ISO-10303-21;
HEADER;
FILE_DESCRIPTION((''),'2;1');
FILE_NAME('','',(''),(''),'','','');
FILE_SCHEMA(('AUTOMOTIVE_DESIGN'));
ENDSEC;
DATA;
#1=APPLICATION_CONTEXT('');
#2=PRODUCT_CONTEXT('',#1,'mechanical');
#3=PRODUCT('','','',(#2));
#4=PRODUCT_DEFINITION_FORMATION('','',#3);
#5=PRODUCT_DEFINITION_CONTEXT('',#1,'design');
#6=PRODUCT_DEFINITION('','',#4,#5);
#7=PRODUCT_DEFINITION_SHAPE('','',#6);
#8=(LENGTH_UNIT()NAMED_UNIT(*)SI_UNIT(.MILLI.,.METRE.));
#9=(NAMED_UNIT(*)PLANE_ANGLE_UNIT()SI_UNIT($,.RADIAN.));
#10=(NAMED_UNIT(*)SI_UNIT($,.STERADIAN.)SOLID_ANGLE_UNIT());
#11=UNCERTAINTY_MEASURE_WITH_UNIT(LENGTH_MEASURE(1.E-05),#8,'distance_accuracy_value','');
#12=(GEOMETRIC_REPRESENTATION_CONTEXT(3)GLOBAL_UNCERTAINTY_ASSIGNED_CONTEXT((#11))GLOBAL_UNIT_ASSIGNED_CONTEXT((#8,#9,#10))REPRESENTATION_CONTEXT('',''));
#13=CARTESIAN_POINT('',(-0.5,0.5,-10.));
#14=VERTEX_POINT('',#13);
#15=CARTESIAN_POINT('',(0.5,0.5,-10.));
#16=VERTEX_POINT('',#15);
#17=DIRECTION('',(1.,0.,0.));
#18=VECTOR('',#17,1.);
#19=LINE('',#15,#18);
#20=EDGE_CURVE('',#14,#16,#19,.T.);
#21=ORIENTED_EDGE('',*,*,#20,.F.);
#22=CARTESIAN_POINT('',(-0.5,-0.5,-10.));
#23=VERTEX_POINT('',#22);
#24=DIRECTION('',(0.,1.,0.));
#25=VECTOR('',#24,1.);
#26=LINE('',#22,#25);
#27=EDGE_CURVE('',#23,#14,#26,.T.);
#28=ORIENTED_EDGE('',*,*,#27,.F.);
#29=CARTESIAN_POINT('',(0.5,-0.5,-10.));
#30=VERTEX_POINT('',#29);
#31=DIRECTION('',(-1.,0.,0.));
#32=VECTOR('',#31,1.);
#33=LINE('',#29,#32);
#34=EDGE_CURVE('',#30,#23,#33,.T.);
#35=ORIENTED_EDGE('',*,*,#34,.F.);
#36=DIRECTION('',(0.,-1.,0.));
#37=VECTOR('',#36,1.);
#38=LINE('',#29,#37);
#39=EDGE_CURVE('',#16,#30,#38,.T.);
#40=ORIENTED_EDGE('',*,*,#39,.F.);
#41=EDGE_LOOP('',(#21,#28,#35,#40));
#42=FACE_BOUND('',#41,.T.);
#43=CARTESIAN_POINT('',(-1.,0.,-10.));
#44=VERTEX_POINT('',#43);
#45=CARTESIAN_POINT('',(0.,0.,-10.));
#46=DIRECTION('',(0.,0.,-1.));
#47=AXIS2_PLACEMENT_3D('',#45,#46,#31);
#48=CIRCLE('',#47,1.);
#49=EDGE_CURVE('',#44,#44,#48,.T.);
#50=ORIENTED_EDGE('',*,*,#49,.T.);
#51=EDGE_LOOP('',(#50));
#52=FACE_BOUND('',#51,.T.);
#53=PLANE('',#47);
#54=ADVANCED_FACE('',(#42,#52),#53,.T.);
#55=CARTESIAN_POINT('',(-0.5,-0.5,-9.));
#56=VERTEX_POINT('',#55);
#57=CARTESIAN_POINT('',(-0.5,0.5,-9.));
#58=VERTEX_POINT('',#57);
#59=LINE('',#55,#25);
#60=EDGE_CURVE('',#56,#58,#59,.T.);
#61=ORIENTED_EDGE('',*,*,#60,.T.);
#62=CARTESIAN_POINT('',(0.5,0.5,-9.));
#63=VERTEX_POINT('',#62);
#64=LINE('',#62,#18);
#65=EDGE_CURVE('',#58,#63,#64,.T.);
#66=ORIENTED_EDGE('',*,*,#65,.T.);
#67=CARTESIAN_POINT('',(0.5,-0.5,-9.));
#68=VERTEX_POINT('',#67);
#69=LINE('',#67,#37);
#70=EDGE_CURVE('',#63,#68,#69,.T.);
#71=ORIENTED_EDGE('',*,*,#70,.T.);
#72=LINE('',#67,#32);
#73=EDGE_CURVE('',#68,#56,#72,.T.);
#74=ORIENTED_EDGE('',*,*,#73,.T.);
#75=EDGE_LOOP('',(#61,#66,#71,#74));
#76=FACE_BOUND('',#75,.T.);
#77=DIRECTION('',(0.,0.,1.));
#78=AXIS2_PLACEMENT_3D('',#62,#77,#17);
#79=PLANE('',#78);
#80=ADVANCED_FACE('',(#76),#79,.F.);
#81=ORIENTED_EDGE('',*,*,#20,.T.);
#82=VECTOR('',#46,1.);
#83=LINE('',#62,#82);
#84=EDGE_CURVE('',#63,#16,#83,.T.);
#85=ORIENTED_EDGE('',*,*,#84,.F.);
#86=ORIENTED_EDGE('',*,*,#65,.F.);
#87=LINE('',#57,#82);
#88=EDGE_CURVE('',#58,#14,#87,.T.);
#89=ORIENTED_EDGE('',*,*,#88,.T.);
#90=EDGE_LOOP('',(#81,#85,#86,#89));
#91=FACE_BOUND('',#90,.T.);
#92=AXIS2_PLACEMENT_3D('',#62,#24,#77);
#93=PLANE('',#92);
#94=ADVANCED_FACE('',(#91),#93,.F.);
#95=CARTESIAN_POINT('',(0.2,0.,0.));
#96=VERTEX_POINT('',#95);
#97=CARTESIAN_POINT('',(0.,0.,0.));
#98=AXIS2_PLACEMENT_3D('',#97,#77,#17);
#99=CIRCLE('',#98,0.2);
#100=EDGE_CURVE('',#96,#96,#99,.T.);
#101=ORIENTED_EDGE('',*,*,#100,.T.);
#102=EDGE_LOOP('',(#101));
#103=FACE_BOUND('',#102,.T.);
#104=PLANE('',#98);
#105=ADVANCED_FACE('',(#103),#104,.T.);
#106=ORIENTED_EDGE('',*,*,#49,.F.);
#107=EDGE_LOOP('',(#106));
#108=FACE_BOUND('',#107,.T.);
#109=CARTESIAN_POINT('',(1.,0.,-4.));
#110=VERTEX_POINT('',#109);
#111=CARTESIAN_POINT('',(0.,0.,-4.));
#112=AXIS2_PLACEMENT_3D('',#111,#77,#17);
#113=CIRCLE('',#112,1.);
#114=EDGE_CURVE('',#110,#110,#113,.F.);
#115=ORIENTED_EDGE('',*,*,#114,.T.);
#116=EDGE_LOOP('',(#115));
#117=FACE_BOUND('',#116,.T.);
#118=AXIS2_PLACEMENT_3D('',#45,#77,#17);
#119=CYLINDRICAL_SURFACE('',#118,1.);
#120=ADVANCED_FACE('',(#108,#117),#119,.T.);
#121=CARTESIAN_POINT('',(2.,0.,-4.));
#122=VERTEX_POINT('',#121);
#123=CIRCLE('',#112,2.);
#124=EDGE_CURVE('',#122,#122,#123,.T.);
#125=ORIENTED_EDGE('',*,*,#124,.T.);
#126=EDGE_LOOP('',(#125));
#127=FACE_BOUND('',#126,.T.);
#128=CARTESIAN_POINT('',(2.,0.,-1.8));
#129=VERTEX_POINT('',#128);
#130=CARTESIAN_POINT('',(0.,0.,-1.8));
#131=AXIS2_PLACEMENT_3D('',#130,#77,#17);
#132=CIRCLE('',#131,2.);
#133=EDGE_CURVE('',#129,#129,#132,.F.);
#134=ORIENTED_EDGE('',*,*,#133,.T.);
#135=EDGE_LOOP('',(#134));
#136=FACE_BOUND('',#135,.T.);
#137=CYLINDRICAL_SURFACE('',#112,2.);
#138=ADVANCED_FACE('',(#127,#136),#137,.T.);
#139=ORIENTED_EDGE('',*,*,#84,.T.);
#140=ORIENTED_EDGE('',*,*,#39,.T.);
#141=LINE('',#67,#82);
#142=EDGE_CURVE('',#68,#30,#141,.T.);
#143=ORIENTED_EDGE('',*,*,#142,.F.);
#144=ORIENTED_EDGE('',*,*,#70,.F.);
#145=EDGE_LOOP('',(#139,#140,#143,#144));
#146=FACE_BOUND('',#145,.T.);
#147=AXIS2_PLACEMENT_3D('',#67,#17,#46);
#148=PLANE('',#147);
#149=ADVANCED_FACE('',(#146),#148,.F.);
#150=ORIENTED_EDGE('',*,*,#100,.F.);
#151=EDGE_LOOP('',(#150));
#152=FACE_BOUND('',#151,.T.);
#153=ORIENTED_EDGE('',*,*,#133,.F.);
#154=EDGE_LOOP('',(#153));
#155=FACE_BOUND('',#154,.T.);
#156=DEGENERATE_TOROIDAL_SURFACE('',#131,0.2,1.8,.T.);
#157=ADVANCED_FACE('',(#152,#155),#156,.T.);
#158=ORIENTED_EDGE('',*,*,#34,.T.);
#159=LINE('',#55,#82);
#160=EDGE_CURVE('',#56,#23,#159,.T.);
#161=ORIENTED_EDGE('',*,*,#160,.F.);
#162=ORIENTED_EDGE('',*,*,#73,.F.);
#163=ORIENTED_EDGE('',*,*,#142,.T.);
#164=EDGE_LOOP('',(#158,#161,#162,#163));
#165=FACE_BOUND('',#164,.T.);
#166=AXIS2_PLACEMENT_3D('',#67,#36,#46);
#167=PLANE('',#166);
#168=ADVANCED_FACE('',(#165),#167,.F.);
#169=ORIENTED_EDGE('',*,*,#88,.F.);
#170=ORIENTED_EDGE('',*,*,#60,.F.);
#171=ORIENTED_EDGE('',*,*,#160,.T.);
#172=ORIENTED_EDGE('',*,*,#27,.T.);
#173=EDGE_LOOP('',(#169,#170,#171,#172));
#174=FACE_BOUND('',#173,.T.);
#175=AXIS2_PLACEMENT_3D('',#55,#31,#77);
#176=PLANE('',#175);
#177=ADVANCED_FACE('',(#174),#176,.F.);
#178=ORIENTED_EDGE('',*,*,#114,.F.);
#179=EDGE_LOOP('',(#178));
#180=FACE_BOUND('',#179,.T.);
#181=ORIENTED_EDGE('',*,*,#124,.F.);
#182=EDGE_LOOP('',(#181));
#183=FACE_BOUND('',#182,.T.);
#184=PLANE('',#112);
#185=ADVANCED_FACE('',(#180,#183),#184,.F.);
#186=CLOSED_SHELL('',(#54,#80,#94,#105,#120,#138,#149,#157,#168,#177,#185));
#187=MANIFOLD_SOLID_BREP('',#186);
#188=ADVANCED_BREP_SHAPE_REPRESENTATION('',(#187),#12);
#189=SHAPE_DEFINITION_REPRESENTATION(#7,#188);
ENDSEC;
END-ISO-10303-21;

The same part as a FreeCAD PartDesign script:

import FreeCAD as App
import Part
import Sketcher
Q = App.Units.Quantity


def edges_at(feature, points):
    """Names of the edges that pass closest to the given points."""
    edges = feature.Shape.Edges
    near = lambda p: min(range(len(edges)), key=lambda i: edges[i].distToShape(Part.Vertex(*p))[0])
    return sorted({f"Edge{near(p) + 1}" for p in points})


def add_polygon(sketch, points):
    """Adds a closed chain of lines whose ends are joined by coincident constraints."""
    first, n = sketch.GeometryCount, len(points)
    for a, b in zip(points, points[1:] + points[:1]):
        sketch.addGeometry(Part.LineSegment(App.Vector(*a, 0), App.Vector(*b, 0)), False)
    for i in range(n):
        sketch.addConstraint(Sketcher.Constraint("Coincident", first + i, 2, first + (i + 1) % n, 1))

doc = App.newDocument("Part")
params = doc.addObject("Spreadsheet::Sheet", "Params")
for row, (alias, value) in enumerate([
    ("sketch1_diameter", "4 mm"),
    ("pad1_length", "4 mm"),
    ("fillet_radius", "1.8 mm"),
    ("sketch2_diameter", "2 mm"),
    ("pad2_length", "6 mm"),
    ("sketch3_width", "1 mm"),
    ("pocket1_length", "1 mm"),
], start=1):
    params.set(f"A{row}", alias)
    params.set(f"B{row}", "=" + value)
    params.setAlias(f"B{row}", alias)

body = doc.addObject("PartDesign::Body", "Body")

# Sketch on XY plane
sketch1 = body.newObject("Sketcher::SketchObject", "Sketch")
sketch1.AttachmentSupport = (doc.getObject("XY_Plane"), [""])
sketch1.MapMode = "FlatFace"
sketch1.addGeometry(Part.Circle(App.Vector(0, 0, 0), App.Vector(0, 0, 1), 2), False)
sketch1.addConstraint([
    Sketcher.Constraint("Coincident", 0, 3, -1, 1),
    Sketcher.Constraint("Diameter", 0, Q("4 mm")),
])
sketch1.setExpression("Constraints[1]", "Params.sketch1_diameter")
pad1 = body.newObject("PartDesign::Pad", "Pad")
pad1.Profile = sketch1
pad1.setExpression("Length", "Params.pad1_length")
pad1.Reversed = True
doc.recompute()

fillet = body.newObject("PartDesign::Fillet", "Fillet")
fillet.Base = (pad1, edges_at(pad1, [(-2, 0, 0)]))
fillet.setExpression("Radius", "Params.fillet_radius")

# Sketch on XY plane
sketch2 = body.newObject("Sketcher::SketchObject", "Sketch001")
sketch2.AttachmentSupport = (doc.getObject("XY_Plane"), [""])
sketch2.MapMode = "FlatFace"
sketch2.AttachmentOffset = App.Placement(App.Vector(0, 0, -4), App.Rotation())
sketch2.addGeometry(Part.Circle(App.Vector(0, 0, 0), App.Vector(0, 0, 1), 1), False)
sketch2.addConstraint([
    Sketcher.Constraint("Coincident", 0, 3, -1, 1),
    Sketcher.Constraint("Diameter", 0, Q("2 mm")),
])
sketch2.setExpression("Constraints[1]", "Params.sketch2_diameter")
pad2 = body.newObject("PartDesign::Pad", "Pad001")
pad2.Profile = sketch2
pad2.setExpression("Length", "Params.pad2_length")
pad2.Reversed = True

# Sketch on XY plane
sketch3 = body.newObject("Sketcher::SketchObject", "Sketch002")
sketch3.AttachmentSupport = (doc.getObject("XY_Plane"), [""])
sketch3.MapMode = "FlatFace"
sketch3.AttachmentOffset = App.Placement(App.Vector(0, 0, -10), App.Rotation())
add_polygon(sketch3, [(0.5, 0.5), (0.5, -0.5), (-0.5, -0.5), (-0.5, 0.5)])  # lines 0-3
sketch3.addConstraint([
    Sketcher.Constraint("Vertical", 0),
    Sketcher.Constraint("Horizontal", 1),
    Sketcher.Constraint("Vertical", 2),
    Sketcher.Constraint("Horizontal", 3),
    Sketcher.Constraint("Symmetric", 0, 2, 2, 2, -1, 1),
    Sketcher.Constraint("Equal", 3, 0),
    Sketcher.Constraint("DistanceX", 1, 2, 1, 1, Q("1 mm")),
])
sketch3.setExpression("Constraints[10]", "Params.sketch3_width")
pocket1 = body.newObject("PartDesign::Pocket", "Pocket")
pocket1.Profile = sketch3
pocket1.setExpression("Length", "Params.pocket1_length")
pocket1.Reversed = True

doc.recompute()
